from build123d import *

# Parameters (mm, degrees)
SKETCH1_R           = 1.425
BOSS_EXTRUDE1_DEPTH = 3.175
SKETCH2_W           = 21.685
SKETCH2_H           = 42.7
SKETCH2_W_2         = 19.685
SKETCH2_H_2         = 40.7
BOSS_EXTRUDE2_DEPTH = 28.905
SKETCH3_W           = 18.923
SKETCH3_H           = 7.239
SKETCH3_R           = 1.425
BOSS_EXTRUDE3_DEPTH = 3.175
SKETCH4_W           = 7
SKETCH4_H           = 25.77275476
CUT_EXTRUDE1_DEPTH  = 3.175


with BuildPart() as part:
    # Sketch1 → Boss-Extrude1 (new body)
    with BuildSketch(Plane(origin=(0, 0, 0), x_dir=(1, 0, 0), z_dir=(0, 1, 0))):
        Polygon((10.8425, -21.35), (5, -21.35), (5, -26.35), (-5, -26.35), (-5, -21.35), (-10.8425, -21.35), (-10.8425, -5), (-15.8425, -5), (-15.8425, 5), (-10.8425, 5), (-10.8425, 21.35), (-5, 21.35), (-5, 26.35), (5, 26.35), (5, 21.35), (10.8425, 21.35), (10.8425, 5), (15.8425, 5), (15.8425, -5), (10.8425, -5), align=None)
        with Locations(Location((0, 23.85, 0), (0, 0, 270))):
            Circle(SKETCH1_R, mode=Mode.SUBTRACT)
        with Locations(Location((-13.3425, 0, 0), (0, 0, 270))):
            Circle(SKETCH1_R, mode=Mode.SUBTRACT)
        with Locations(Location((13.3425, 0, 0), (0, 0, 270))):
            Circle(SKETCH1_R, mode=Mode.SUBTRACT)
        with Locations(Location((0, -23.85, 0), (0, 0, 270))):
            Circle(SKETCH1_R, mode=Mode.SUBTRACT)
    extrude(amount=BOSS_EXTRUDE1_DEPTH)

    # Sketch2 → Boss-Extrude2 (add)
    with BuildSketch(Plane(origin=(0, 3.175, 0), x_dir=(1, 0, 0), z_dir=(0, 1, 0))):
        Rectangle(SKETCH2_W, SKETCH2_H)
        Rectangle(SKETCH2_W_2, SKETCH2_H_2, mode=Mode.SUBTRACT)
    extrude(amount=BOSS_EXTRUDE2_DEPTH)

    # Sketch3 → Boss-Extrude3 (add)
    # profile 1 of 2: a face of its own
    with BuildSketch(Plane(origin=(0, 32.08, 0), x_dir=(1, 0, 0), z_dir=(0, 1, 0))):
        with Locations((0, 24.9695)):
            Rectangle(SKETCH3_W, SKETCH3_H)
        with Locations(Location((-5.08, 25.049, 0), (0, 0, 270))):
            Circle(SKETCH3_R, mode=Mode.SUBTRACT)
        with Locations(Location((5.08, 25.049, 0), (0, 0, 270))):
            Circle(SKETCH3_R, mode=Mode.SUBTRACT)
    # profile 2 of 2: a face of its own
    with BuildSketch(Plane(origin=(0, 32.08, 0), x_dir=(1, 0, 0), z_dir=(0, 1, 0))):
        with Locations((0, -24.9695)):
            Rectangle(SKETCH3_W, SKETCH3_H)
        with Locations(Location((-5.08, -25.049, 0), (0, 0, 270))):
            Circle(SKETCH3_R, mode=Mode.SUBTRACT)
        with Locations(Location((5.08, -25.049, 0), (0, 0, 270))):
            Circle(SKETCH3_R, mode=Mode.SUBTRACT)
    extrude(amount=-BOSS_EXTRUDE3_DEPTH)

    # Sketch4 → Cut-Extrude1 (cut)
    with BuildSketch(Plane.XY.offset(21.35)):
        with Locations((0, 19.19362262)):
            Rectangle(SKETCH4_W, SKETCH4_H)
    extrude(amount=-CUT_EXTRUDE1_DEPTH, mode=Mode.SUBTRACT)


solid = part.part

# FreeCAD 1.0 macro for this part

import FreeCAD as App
import Part
import Sketcher
from FreeCAD import Vector
Q = App.Units.Quantity

doc = App.newDocument("Part")
body = doc.addObject("PartDesign::Body", "Body")

sketch1 = body.newObject("Sketcher::SketchObject", "Sketch")
sketch1.AttachmentSupport = (doc.getObject("XZ_Plane"), [""])
sketch1.MapMode = "FlatFace"
sketch1.addGeometry(Part.LineSegment(Vector(5, 21.4, 0), Vector(10.8, 21.4, 0)), False)
sketch1.addGeometry(Part.LineSegment(Vector(10.8, 21.4, 0), Vector(10.8, 5, 0)), False)
sketch1.addGeometry(Part.LineSegment(Vector(10.8, 5, 0), Vector(15.8, 5, 0)), False)
sketch1.addGeometry(Part.LineSegment(Vector(15.8, 5, 0), Vector(15.8, -5, 0)), False)
sketch1.addGeometry(Part.LineSegment(Vector(15.8, -5, 0), Vector(10.8, -5, 0)), False)
sketch1.addGeometry(Part.LineSegment(Vector(10.8, -5, 0), Vector(10.8, -21.4, 0)), False)
sketch1.addGeometry(Part.LineSegment(Vector(10.8, -21.4, 0), Vector(5, -21.4, 0)), False)
sketch1.addGeometry(Part.LineSegment(Vector(5, -21.4, 0), Vector(5, -26.4, 0)), False)
sketch1.addGeometry(Part.LineSegment(Vector(5, -26.4, 0), Vector(-5, -26.4, 0)), False)
sketch1.addGeometry(Part.LineSegment(Vector(-5, -26.4, 0), Vector(-5, -21.4, 0)), False)
sketch1.addGeometry(Part.LineSegment(Vector(-5, -21.4, 0), Vector(-10.8, -21.4, 0)), False)
sketch1.addGeometry(Part.LineSegment(Vector(-10.8, -21.4, 0), Vector(-10.8, -5, 0)), False)
sketch1.addGeometry(Part.LineSegment(Vector(-10.8, -5, 0), Vector(-15.8, -5, 0)), False)
sketch1.addGeometry(Part.LineSegment(Vector(-15.8, -5, 0), Vector(-15.8, 5, 0)), False)
sketch1.addGeometry(Part.LineSegment(Vector(-15.8, 5, 0), Vector(-10.8, 5, 0)), False)
sketch1.addGeometry(Part.LineSegment(Vector(-10.8, 5, 0), Vector(-10.8, 21.4, 0)), False)
sketch1.addGeometry(Part.LineSegment(Vector(-10.8, 21.4, 0), Vector(-5, 21.4, 0)), False)
sketch1.addGeometry(Part.LineSegment(Vector(-5, 21.4, 0), Vector(-5, 26.4, 0)), False)
sketch1.addGeometry(Part.LineSegment(Vector(-5, 26.4, 0), Vector(5, 26.4, 0)), False)
sketch1.addGeometry(Part.LineSegment(Vector(5, 26.4, 0), Vector(5, 21.4, 0)), False)
sketch1.addGeometry(Part.Circle(Vector(0, 23.9, 0), Vector(0, 0, 1), 1.4), False)
sketch1.addGeometry(Part.Circle(Vector(13.3, 0, 0), Vector(0, 0, 1), 1.4), False)
sketch1.addGeometry(Part.Circle(Vector(0, -23.9, 0), Vector(0, 0, 1), 1.4), False)
sketch1.addGeometry(Part.Circle(Vector(-13.3, 0, 0), Vector(0, 0, 1), 1.4), False)
sketch1.addConstraint(Sketcher.Constraint("Coincident", 0, 2, 1, 1))
sketch1.addConstraint(Sketcher.Constraint("Coincident", 1, 2, 2, 1))
sketch1.addConstraint(Sketcher.Constraint("Coincident", 2, 2, 3, 1))
sketch1.addConstraint(Sketcher.Constraint("Coincident", 3, 2, 4, 1))
sketch1.addConstraint(Sketcher.Constraint("Coincident", 4, 2, 5, 1))
sketch1.addConstraint(Sketcher.Constraint("Coincident", 5, 2, 6, 1))
sketch1.addConstraint(Sketcher.Constraint("Coincident", 6, 2, 7, 1))
sketch1.addConstraint(Sketcher.Constraint("Coincident", 7, 2, 8, 1))
sketch1.addConstraint(Sketcher.Constraint("Coincident", 8, 2, 9, 1))
sketch1.addConstraint(Sketcher.Constraint("Coincident", 9, 2, 10, 1))
sketch1.addConstraint(Sketcher.Constraint("Coincident", 10, 2, 11, 1))
sketch1.addConstraint(Sketcher.Constraint("Coincident", 11, 2, 12, 1))
sketch1.addConstraint(Sketcher.Constraint("Coincident", 12, 2, 13, 1))
sketch1.addConstraint(Sketcher.Constraint("Coincident", 13, 2, 14, 1))
sketch1.addConstraint(Sketcher.Constraint("Coincident", 14, 2, 15, 1))
sketch1.addConstraint(Sketcher.Constraint("Coincident", 15, 2, 16, 1))
sketch1.addConstraint(Sketcher.Constraint("Coincident", 16, 2, 17, 1))
sketch1.addConstraint(Sketcher.Constraint("Coincident", 17, 2, 18, 1))
sketch1.addConstraint(Sketcher.Constraint("Coincident", 18, 2, 19, 1))
sketch1.addConstraint(Sketcher.Constraint("Coincident", 19, 2, 0, 1))
sketch1.addConstraint(Sketcher.Constraint("Horizontal", 0))
sketch1.addConstraint(Sketcher.Constraint("Vertical", 1))
sketch1.addConstraint(Sketcher.Constraint("Horizontal", 2))
sketch1.addConstraint(Sketcher.Constraint("Vertical", 3))
sketch1.addConstraint(Sketcher.Constraint("Horizontal", 4))
sketch1.addConstraint(Sketcher.Constraint("Vertical", 5))
sketch1.addConstraint(Sketcher.Constraint("Horizontal", 6))
sketch1.addConstraint(Sketcher.Constraint("Vertical", 7))
sketch1.addConstraint(Sketcher.Constraint("Horizontal", 8))
sketch1.addConstraint(Sketcher.Constraint("Vertical", 9))
sketch1.addConstraint(Sketcher.Constraint("Horizontal", 10))
sketch1.addConstraint(Sketcher.Constraint("Vertical", 11))
sketch1.addConstraint(Sketcher.Constraint("Horizontal", 12))
sketch1.addConstraint(Sketcher.Constraint("Vertical", 13))
sketch1.addConstraint(Sketcher.Constraint("Horizontal", 14))
sketch1.addConstraint(Sketcher.Constraint("Vertical", 15))
sketch1.addConstraint(Sketcher.Constraint("Horizontal", 16))
sketch1.addConstraint(Sketcher.Constraint("Vertical", 17))
sketch1.addConstraint(Sketcher.Constraint("Horizontal", 18))
sketch1.addConstraint(Sketcher.Constraint("Vertical", 19))
sketch1.addConstraint(Sketcher.Constraint("Equal", 20, 21))
sketch1.addConstraint(Sketcher.Constraint("Equal", 21, 22))
sketch1.addConstraint(Sketcher.Constraint("Equal", 22, 23))
sketch1.addConstraint(Sketcher.Constraint("Symmetric", 20, 3, 22, 3, -1, 1))
sketch1.addConstraint(Sketcher.Constraint("Symmetric", 21, 3, 23, 3, -1, 1))
sketch1.addConstraint(Sketcher.Constraint("Symmetric", 0, 2, 10, 2, -1, 1))
sketch1.addConstraint(Sketcher.Constraint("Symmetric", 2, 2, 12, 2, -1, 1))
sketch1.addConstraint(Sketcher.Constraint("Symmetric", 4, 2, 14, 2, -1, 1))
sketch1.addConstraint(Sketcher.Constraint("Symmetric", 6, 2, 16, 2, -1, 1))
sketch1.addConstraint(Sketcher.Constraint("Symmetric", 8, 2, 18, 2, -1, 1))
sketch1.addConstraint(Sketcher.Constraint("Symmetric", 6, 2, 9, 2, -2))
sketch1.addConstraint(Sketcher.Constraint("Symmetric", 4, 2, 11, 2, -2))
sketch1.addConstraint(Sketcher.Constraint("PointOnObject", 20, 3, -2))
sketch1.addConstraint(Sketcher.Constraint("PointOnObject", 21, 3, -1))
sketch1.addConstraint(Sketcher.Constraint("Equal", 18, 3))
sketch1.addConstraint(Sketcher.Constraint("Equal", 14, 7))
sketch1.addConstraint(Sketcher.Constraint("Diameter", 20, Q("2.85 mm")))
sketch1.addConstraint(Sketcher.Constraint("DistanceX", 2, 1, 2, 2, Q("5 mm")))
sketch1.addConstraint(Sketcher.Constraint("DistanceX", 8, 2, 8, 1, Q("10 mm")))
sketch1.addConstraint(Sketcher.Constraint("DistanceY", 1, 2, 1, 1, Q("16.35 mm")))
sketch1.addConstraint(Sketcher.Constraint("DistanceY", 22, 3, 20, 3, Q("47.7 mm")))
sketch1.addConstraint(Sketcher.Constraint("DistanceX", 0, 2, 21, 3, Q("2.5 mm")))
sketch1.addConstraint(Sketcher.Constraint("DistanceX", 0, 1, 0, 2, Q("5.8425 mm")))
pad1 = body.newObject("PartDesign::Pad", "Pad")
pad1.Profile = sketch1
pad1.Length = 3.175
pad1.Reversed = True

sketch2 = body.newObject("Sketcher::SketchObject", "Sketch001")
sketch2.AttachmentSupport = (doc.getObject("XZ_Plane"), [""])
sketch2.MapMode = "FlatFace"
sketch2.AttachmentOffset = App.Placement(Vector(0, 0, -3.175), App.Rotation())
sketch2.addGeometry(Part.LineSegment(Vector(-11, -21, 0), Vector(-11, 21, 0)), False)
sketch2.addGeometry(Part.LineSegment(Vector(-11, 21, 0), Vector(11, 21, 0)), False)
sketch2.addGeometry(Part.LineSegment(Vector(11, 21, 0), Vector(11, -21, 0)), False)
sketch2.addGeometry(Part.LineSegment(Vector(11, -21, 0), Vector(-11, -21, 0)), False)
sketch2.addGeometry(Part.LineSegment(Vector(10, 20, 0), Vector(-10, 20, 0)), False)
sketch2.addGeometry(Part.LineSegment(Vector(-10, 20, 0), Vector(-10, -20, 0)), False)
sketch2.addGeometry(Part.LineSegment(Vector(-10, -20, 0), Vector(10, -20, 0)), False)
sketch2.addGeometry(Part.LineSegment(Vector(10, -20, 0), Vector(10, 20, 0)), False)
sketch2.addConstraint(Sketcher.Constraint("Coincident", 0, 2, 1, 1))
sketch2.addConstraint(Sketcher.Constraint("Coincident", 1, 2, 2, 1))
sketch2.addConstraint(Sketcher.Constraint("Coincident", 2, 2, 3, 1))
sketch2.addConstraint(Sketcher.Constraint("Coincident", 3, 2, 0, 1))
sketch2.addConstraint(Sketcher.Constraint("Coincident", 4, 2, 5, 1))
sketch2.addConstraint(Sketcher.Constraint("Coincident", 5, 2, 6, 1))
sketch2.addConstraint(Sketcher.Constraint("Coincident", 6, 2, 7, 1))
sketch2.addConstraint(Sketcher.Constraint("Coincident", 7, 2, 4, 1))
sketch2.addConstraint(Sketcher.Constraint("Vertical", 0))
sketch2.addConstraint(Sketcher.Constraint("Horizontal", 1))
sketch2.addConstraint(Sketcher.Constraint("Vertical", 2))
sketch2.addConstraint(Sketcher.Constraint("Horizontal", 3))
sketch2.addConstraint(Sketcher.Constraint("Horizontal", 4))
sketch2.addConstraint(Sketcher.Constraint("Vertical", 5))
sketch2.addConstraint(Sketcher.Constraint("Horizontal", 6))
sketch2.addConstraint(Sketcher.Constraint("Vertical", 7))
sketch2.addConstraint(Sketcher.Constraint("Symmetric", 0, 2, 2, 2, -1, 1))
sketch2.addConstraint(Sketcher.Constraint("Symmetric", 4, 2, 6, 2, -1, 1))
sketch2.addConstraint(Sketcher.Constraint("DistanceY", 0, 1, 0, 2, Q("42.7 mm")))
sketch2.addConstraint(Sketcher.Constraint("DistanceY", 5, 2, 5, 1, Q("40.7 mm")))
sketch2.addConstraint(Sketcher.Constraint("DistanceX", 0, 2, 4, 2, Q("1 mm")))
sketch2.addConstraint(Sketcher.Constraint("DistanceX", 1, 1, 1, 2, Q("21.685 mm")))
pad2 = body.newObject("PartDesign::Pad", "Pad001")
pad2.Profile = sketch2
pad2.Length = 28.905
pad2.Reversed = True

sketch3 = body.newObject("Sketcher::SketchObject", "Sketch002")
sketch3.AttachmentSupport = (doc.getObject("XZ_Plane"), [""])
sketch3.MapMode = "FlatFace"
sketch3.AttachmentOffset = App.Placement(Vector(0, 0, -32.08), App.Rotation())
sketch3.addGeometry(Part.LineSegment(Vector(-9.5, -28.6, 0), Vector(-9.5, -21.4, 0)), False)
sketch3.addGeometry(Part.LineSegment(Vector(-9.5, -21.4, 0), Vector(9.5, -21.4, 0)), False)
sketch3.addGeometry(Part.LineSegment(Vector(9.5, -21.4, 0), Vector(9.5, -28.6, 0)), False)
sketch3.addGeometry(Part.LineSegment(Vector(9.5, -28.6, 0), Vector(-9.5, -28.6, 0)), False)
sketch3.addGeometry(Part.Circle(Vector(-5.1, -25, 0), Vector(0, 0, 1), 1.4), False)
sketch3.addGeometry(Part.Circle(Vector(5.1, -25, 0), Vector(0, 0, 1), 1.4), False)
sketch3.addGeometry(Part.LineSegment(Vector(-9.5, 21.4, 0), Vector(-9.5, 28.6, 0)), False)
sketch3.addGeometry(Part.LineSegment(Vector(-9.5, 28.6, 0), Vector(9.5, 28.6, 0)), False)
sketch3.addGeometry(Part.LineSegment(Vector(9.5, 28.6, 0), Vector(9.5, 21.4, 0)), False)
sketch3.addGeometry(Part.LineSegment(Vector(9.5, 21.4, 0), Vector(-9.5, 21.4, 0)), False)
sketch3.addGeometry(Part.Circle(Vector(-5.1, 25, 0), Vector(0, 0, 1), 1.4), False)
sketch3.addGeometry(Part.Circle(Vector(5.1, 25, 0), Vector(0, 0, 1), 1.4), False)
sketch3.addConstraint(Sketcher.Constraint("Coincident", 0, 2, 1, 1))
sketch3.addConstraint(Sketcher.Constraint("Coincident", 1, 2, 2, 1))
sketch3.addConstraint(Sketcher.Constraint("Coincident", 2, 2, 3, 1))
sketch3.addConstraint(Sketcher.Constraint("Coincident", 3, 2, 0, 1))
sketch3.addConstraint(Sketcher.Constraint("Coincident", 6, 2, 7, 1))
sketch3.addConstraint(Sketcher.Constraint("Coincident", 7, 2, 8, 1))
sketch3.addConstraint(Sketcher.Constraint("Coincident", 8, 2, 9, 1))
sketch3.addConstraint(Sketcher.Constraint("Coincident", 9, 2, 6, 1))
sketch3.addConstraint(Sketcher.Constraint("Vertical", 0))
sketch3.addConstraint(Sketcher.Constraint("Horizontal", 1))
sketch3.addConstraint(Sketcher.Constraint("Vertical", 2))
sketch3.addConstraint(Sketcher.Constraint("Horizontal", 3))
sketch3.addConstraint(Sketcher.Constraint("Vertical", 6))
sketch3.addConstraint(Sketcher.Constraint("Horizontal", 7))
sketch3.addConstraint(Sketcher.Constraint("Vertical", 8))
sketch3.addConstraint(Sketcher.Constraint("Horizontal", 9))
sketch3.addConstraint(Sketcher.Constraint("Equal", 4, 5))
sketch3.addConstraint(Sketcher.Constraint("Equal", 5, 10))
sketch3.addConstraint(Sketcher.Constraint("Equal", 10, 11))
sketch3.addConstraint(Sketcher.Constraint("Symmetric", 5, 3, 10, 3, -1, 1))
sketch3.addConstraint(Sketcher.Constraint("Symmetric", 4, 3, 11, 3, -1, 1))
sketch3.addConstraint(Sketcher.Constraint("Symmetric", 2, 2, 6, 2, -1, 1))
sketch3.addConstraint(Sketcher.Constraint("Symmetric", 0, 2, 8, 2, -1, 1))
sketch3.addConstraint(Sketcher.Constraint("Symmetric", 4, 3, 5, 3, -2))
sketch3.addConstraint(Sketcher.Constraint("Vertical", 3, 2, 6, 2))
sketch3.addConstraint(Sketcher.Constraint("Diameter", 4, Q("2.85 mm")))
sketch3.addConstraint(Sketcher.Constraint("DistanceY", 1, 2, 8, 2, Q("42.7 mm")))
sketch3.addConstraint(Sketcher.Constraint("DistanceX", 1, 1, 1, 2, Q("18.923 mm")))
sketch3.addConstraint(Sketcher.Constraint("DistanceY", 0, 1, 0, 2, Q("7.239 mm")))
sketch3.addConstraint(Sketcher.Constraint("DistanceX", 4, 3, -1, 1, Q("5.08 mm")))
sketch3.addConstraint(Sketcher.Constraint("DistanceY", 2, 2, 5, 3, Q("3.54 mm")))
pad3 = body.newObject("PartDesign::Pad", "Pad002")
pad3.Profile = sketch3
pad3.Length = 3.175

sketch4 = body.newObject("Sketcher::SketchObject", "Sketch003")
sketch4.AttachmentSupport = (doc.getObject("XY_Plane"), [""])
sketch4.MapMode = "FlatFace"
sketch4.AttachmentOffset = App.Placement(Vector(0, 0, 21.35), App.Rotation())
sketch4.addGeometry(Part.LineSegment(Vector(-4, 32, 0), Vector(-4, 6, 0)), False)
sketch4.addGeometry(Part.LineSegment(Vector(-4, 6, 0), Vector(4, 6, 0)), False)
sketch4.addGeometry(Part.LineSegment(Vector(4, 6, 0), Vector(4, 32, 0)), False)
sketch4.addGeometry(Part.LineSegment(Vector(4, 32, 0), Vector(-4, 32, 0)), False)
sketch4.addConstraint(Sketcher.Constraint("Coincident", 0, 2, 1, 1))
sketch4.addConstraint(Sketcher.Constraint("Coincident", 1, 2, 2, 1))
sketch4.addConstraint(Sketcher.Constraint("Coincident", 2, 2, 3, 1))
sketch4.addConstraint(Sketcher.Constraint("Coincident", 3, 2, 0, 1))
sketch4.addConstraint(Sketcher.Constraint("Vertical", 0))
sketch4.addConstraint(Sketcher.Constraint("Horizontal", 1))
sketch4.addConstraint(Sketcher.Constraint("Vertical", 2))
sketch4.addConstraint(Sketcher.Constraint("Horizontal", 3))
sketch4.addConstraint(Sketcher.Constraint("DistanceX", 1, 1, 1, 2, Q("7 mm")))
sketch4.addConstraint(Sketcher.Constraint("DistanceX", 0, 2, -1, 1, Q("3.5 mm")))
sketch4.addConstraint(Sketcher.Constraint("DistanceY", -1, 1, 2, 2, Q("32.08 mm")))
sketch4.addConstraint(Sketcher.Constraint("DistanceY", 0, 2, 0, 1, Q("25.772755 mm")))
pocket1 = body.newObject("PartDesign::Pocket", "Pocket")
pocket1.Profile = sketch4
pocket1.Length = 3.175

doc.recompute()
